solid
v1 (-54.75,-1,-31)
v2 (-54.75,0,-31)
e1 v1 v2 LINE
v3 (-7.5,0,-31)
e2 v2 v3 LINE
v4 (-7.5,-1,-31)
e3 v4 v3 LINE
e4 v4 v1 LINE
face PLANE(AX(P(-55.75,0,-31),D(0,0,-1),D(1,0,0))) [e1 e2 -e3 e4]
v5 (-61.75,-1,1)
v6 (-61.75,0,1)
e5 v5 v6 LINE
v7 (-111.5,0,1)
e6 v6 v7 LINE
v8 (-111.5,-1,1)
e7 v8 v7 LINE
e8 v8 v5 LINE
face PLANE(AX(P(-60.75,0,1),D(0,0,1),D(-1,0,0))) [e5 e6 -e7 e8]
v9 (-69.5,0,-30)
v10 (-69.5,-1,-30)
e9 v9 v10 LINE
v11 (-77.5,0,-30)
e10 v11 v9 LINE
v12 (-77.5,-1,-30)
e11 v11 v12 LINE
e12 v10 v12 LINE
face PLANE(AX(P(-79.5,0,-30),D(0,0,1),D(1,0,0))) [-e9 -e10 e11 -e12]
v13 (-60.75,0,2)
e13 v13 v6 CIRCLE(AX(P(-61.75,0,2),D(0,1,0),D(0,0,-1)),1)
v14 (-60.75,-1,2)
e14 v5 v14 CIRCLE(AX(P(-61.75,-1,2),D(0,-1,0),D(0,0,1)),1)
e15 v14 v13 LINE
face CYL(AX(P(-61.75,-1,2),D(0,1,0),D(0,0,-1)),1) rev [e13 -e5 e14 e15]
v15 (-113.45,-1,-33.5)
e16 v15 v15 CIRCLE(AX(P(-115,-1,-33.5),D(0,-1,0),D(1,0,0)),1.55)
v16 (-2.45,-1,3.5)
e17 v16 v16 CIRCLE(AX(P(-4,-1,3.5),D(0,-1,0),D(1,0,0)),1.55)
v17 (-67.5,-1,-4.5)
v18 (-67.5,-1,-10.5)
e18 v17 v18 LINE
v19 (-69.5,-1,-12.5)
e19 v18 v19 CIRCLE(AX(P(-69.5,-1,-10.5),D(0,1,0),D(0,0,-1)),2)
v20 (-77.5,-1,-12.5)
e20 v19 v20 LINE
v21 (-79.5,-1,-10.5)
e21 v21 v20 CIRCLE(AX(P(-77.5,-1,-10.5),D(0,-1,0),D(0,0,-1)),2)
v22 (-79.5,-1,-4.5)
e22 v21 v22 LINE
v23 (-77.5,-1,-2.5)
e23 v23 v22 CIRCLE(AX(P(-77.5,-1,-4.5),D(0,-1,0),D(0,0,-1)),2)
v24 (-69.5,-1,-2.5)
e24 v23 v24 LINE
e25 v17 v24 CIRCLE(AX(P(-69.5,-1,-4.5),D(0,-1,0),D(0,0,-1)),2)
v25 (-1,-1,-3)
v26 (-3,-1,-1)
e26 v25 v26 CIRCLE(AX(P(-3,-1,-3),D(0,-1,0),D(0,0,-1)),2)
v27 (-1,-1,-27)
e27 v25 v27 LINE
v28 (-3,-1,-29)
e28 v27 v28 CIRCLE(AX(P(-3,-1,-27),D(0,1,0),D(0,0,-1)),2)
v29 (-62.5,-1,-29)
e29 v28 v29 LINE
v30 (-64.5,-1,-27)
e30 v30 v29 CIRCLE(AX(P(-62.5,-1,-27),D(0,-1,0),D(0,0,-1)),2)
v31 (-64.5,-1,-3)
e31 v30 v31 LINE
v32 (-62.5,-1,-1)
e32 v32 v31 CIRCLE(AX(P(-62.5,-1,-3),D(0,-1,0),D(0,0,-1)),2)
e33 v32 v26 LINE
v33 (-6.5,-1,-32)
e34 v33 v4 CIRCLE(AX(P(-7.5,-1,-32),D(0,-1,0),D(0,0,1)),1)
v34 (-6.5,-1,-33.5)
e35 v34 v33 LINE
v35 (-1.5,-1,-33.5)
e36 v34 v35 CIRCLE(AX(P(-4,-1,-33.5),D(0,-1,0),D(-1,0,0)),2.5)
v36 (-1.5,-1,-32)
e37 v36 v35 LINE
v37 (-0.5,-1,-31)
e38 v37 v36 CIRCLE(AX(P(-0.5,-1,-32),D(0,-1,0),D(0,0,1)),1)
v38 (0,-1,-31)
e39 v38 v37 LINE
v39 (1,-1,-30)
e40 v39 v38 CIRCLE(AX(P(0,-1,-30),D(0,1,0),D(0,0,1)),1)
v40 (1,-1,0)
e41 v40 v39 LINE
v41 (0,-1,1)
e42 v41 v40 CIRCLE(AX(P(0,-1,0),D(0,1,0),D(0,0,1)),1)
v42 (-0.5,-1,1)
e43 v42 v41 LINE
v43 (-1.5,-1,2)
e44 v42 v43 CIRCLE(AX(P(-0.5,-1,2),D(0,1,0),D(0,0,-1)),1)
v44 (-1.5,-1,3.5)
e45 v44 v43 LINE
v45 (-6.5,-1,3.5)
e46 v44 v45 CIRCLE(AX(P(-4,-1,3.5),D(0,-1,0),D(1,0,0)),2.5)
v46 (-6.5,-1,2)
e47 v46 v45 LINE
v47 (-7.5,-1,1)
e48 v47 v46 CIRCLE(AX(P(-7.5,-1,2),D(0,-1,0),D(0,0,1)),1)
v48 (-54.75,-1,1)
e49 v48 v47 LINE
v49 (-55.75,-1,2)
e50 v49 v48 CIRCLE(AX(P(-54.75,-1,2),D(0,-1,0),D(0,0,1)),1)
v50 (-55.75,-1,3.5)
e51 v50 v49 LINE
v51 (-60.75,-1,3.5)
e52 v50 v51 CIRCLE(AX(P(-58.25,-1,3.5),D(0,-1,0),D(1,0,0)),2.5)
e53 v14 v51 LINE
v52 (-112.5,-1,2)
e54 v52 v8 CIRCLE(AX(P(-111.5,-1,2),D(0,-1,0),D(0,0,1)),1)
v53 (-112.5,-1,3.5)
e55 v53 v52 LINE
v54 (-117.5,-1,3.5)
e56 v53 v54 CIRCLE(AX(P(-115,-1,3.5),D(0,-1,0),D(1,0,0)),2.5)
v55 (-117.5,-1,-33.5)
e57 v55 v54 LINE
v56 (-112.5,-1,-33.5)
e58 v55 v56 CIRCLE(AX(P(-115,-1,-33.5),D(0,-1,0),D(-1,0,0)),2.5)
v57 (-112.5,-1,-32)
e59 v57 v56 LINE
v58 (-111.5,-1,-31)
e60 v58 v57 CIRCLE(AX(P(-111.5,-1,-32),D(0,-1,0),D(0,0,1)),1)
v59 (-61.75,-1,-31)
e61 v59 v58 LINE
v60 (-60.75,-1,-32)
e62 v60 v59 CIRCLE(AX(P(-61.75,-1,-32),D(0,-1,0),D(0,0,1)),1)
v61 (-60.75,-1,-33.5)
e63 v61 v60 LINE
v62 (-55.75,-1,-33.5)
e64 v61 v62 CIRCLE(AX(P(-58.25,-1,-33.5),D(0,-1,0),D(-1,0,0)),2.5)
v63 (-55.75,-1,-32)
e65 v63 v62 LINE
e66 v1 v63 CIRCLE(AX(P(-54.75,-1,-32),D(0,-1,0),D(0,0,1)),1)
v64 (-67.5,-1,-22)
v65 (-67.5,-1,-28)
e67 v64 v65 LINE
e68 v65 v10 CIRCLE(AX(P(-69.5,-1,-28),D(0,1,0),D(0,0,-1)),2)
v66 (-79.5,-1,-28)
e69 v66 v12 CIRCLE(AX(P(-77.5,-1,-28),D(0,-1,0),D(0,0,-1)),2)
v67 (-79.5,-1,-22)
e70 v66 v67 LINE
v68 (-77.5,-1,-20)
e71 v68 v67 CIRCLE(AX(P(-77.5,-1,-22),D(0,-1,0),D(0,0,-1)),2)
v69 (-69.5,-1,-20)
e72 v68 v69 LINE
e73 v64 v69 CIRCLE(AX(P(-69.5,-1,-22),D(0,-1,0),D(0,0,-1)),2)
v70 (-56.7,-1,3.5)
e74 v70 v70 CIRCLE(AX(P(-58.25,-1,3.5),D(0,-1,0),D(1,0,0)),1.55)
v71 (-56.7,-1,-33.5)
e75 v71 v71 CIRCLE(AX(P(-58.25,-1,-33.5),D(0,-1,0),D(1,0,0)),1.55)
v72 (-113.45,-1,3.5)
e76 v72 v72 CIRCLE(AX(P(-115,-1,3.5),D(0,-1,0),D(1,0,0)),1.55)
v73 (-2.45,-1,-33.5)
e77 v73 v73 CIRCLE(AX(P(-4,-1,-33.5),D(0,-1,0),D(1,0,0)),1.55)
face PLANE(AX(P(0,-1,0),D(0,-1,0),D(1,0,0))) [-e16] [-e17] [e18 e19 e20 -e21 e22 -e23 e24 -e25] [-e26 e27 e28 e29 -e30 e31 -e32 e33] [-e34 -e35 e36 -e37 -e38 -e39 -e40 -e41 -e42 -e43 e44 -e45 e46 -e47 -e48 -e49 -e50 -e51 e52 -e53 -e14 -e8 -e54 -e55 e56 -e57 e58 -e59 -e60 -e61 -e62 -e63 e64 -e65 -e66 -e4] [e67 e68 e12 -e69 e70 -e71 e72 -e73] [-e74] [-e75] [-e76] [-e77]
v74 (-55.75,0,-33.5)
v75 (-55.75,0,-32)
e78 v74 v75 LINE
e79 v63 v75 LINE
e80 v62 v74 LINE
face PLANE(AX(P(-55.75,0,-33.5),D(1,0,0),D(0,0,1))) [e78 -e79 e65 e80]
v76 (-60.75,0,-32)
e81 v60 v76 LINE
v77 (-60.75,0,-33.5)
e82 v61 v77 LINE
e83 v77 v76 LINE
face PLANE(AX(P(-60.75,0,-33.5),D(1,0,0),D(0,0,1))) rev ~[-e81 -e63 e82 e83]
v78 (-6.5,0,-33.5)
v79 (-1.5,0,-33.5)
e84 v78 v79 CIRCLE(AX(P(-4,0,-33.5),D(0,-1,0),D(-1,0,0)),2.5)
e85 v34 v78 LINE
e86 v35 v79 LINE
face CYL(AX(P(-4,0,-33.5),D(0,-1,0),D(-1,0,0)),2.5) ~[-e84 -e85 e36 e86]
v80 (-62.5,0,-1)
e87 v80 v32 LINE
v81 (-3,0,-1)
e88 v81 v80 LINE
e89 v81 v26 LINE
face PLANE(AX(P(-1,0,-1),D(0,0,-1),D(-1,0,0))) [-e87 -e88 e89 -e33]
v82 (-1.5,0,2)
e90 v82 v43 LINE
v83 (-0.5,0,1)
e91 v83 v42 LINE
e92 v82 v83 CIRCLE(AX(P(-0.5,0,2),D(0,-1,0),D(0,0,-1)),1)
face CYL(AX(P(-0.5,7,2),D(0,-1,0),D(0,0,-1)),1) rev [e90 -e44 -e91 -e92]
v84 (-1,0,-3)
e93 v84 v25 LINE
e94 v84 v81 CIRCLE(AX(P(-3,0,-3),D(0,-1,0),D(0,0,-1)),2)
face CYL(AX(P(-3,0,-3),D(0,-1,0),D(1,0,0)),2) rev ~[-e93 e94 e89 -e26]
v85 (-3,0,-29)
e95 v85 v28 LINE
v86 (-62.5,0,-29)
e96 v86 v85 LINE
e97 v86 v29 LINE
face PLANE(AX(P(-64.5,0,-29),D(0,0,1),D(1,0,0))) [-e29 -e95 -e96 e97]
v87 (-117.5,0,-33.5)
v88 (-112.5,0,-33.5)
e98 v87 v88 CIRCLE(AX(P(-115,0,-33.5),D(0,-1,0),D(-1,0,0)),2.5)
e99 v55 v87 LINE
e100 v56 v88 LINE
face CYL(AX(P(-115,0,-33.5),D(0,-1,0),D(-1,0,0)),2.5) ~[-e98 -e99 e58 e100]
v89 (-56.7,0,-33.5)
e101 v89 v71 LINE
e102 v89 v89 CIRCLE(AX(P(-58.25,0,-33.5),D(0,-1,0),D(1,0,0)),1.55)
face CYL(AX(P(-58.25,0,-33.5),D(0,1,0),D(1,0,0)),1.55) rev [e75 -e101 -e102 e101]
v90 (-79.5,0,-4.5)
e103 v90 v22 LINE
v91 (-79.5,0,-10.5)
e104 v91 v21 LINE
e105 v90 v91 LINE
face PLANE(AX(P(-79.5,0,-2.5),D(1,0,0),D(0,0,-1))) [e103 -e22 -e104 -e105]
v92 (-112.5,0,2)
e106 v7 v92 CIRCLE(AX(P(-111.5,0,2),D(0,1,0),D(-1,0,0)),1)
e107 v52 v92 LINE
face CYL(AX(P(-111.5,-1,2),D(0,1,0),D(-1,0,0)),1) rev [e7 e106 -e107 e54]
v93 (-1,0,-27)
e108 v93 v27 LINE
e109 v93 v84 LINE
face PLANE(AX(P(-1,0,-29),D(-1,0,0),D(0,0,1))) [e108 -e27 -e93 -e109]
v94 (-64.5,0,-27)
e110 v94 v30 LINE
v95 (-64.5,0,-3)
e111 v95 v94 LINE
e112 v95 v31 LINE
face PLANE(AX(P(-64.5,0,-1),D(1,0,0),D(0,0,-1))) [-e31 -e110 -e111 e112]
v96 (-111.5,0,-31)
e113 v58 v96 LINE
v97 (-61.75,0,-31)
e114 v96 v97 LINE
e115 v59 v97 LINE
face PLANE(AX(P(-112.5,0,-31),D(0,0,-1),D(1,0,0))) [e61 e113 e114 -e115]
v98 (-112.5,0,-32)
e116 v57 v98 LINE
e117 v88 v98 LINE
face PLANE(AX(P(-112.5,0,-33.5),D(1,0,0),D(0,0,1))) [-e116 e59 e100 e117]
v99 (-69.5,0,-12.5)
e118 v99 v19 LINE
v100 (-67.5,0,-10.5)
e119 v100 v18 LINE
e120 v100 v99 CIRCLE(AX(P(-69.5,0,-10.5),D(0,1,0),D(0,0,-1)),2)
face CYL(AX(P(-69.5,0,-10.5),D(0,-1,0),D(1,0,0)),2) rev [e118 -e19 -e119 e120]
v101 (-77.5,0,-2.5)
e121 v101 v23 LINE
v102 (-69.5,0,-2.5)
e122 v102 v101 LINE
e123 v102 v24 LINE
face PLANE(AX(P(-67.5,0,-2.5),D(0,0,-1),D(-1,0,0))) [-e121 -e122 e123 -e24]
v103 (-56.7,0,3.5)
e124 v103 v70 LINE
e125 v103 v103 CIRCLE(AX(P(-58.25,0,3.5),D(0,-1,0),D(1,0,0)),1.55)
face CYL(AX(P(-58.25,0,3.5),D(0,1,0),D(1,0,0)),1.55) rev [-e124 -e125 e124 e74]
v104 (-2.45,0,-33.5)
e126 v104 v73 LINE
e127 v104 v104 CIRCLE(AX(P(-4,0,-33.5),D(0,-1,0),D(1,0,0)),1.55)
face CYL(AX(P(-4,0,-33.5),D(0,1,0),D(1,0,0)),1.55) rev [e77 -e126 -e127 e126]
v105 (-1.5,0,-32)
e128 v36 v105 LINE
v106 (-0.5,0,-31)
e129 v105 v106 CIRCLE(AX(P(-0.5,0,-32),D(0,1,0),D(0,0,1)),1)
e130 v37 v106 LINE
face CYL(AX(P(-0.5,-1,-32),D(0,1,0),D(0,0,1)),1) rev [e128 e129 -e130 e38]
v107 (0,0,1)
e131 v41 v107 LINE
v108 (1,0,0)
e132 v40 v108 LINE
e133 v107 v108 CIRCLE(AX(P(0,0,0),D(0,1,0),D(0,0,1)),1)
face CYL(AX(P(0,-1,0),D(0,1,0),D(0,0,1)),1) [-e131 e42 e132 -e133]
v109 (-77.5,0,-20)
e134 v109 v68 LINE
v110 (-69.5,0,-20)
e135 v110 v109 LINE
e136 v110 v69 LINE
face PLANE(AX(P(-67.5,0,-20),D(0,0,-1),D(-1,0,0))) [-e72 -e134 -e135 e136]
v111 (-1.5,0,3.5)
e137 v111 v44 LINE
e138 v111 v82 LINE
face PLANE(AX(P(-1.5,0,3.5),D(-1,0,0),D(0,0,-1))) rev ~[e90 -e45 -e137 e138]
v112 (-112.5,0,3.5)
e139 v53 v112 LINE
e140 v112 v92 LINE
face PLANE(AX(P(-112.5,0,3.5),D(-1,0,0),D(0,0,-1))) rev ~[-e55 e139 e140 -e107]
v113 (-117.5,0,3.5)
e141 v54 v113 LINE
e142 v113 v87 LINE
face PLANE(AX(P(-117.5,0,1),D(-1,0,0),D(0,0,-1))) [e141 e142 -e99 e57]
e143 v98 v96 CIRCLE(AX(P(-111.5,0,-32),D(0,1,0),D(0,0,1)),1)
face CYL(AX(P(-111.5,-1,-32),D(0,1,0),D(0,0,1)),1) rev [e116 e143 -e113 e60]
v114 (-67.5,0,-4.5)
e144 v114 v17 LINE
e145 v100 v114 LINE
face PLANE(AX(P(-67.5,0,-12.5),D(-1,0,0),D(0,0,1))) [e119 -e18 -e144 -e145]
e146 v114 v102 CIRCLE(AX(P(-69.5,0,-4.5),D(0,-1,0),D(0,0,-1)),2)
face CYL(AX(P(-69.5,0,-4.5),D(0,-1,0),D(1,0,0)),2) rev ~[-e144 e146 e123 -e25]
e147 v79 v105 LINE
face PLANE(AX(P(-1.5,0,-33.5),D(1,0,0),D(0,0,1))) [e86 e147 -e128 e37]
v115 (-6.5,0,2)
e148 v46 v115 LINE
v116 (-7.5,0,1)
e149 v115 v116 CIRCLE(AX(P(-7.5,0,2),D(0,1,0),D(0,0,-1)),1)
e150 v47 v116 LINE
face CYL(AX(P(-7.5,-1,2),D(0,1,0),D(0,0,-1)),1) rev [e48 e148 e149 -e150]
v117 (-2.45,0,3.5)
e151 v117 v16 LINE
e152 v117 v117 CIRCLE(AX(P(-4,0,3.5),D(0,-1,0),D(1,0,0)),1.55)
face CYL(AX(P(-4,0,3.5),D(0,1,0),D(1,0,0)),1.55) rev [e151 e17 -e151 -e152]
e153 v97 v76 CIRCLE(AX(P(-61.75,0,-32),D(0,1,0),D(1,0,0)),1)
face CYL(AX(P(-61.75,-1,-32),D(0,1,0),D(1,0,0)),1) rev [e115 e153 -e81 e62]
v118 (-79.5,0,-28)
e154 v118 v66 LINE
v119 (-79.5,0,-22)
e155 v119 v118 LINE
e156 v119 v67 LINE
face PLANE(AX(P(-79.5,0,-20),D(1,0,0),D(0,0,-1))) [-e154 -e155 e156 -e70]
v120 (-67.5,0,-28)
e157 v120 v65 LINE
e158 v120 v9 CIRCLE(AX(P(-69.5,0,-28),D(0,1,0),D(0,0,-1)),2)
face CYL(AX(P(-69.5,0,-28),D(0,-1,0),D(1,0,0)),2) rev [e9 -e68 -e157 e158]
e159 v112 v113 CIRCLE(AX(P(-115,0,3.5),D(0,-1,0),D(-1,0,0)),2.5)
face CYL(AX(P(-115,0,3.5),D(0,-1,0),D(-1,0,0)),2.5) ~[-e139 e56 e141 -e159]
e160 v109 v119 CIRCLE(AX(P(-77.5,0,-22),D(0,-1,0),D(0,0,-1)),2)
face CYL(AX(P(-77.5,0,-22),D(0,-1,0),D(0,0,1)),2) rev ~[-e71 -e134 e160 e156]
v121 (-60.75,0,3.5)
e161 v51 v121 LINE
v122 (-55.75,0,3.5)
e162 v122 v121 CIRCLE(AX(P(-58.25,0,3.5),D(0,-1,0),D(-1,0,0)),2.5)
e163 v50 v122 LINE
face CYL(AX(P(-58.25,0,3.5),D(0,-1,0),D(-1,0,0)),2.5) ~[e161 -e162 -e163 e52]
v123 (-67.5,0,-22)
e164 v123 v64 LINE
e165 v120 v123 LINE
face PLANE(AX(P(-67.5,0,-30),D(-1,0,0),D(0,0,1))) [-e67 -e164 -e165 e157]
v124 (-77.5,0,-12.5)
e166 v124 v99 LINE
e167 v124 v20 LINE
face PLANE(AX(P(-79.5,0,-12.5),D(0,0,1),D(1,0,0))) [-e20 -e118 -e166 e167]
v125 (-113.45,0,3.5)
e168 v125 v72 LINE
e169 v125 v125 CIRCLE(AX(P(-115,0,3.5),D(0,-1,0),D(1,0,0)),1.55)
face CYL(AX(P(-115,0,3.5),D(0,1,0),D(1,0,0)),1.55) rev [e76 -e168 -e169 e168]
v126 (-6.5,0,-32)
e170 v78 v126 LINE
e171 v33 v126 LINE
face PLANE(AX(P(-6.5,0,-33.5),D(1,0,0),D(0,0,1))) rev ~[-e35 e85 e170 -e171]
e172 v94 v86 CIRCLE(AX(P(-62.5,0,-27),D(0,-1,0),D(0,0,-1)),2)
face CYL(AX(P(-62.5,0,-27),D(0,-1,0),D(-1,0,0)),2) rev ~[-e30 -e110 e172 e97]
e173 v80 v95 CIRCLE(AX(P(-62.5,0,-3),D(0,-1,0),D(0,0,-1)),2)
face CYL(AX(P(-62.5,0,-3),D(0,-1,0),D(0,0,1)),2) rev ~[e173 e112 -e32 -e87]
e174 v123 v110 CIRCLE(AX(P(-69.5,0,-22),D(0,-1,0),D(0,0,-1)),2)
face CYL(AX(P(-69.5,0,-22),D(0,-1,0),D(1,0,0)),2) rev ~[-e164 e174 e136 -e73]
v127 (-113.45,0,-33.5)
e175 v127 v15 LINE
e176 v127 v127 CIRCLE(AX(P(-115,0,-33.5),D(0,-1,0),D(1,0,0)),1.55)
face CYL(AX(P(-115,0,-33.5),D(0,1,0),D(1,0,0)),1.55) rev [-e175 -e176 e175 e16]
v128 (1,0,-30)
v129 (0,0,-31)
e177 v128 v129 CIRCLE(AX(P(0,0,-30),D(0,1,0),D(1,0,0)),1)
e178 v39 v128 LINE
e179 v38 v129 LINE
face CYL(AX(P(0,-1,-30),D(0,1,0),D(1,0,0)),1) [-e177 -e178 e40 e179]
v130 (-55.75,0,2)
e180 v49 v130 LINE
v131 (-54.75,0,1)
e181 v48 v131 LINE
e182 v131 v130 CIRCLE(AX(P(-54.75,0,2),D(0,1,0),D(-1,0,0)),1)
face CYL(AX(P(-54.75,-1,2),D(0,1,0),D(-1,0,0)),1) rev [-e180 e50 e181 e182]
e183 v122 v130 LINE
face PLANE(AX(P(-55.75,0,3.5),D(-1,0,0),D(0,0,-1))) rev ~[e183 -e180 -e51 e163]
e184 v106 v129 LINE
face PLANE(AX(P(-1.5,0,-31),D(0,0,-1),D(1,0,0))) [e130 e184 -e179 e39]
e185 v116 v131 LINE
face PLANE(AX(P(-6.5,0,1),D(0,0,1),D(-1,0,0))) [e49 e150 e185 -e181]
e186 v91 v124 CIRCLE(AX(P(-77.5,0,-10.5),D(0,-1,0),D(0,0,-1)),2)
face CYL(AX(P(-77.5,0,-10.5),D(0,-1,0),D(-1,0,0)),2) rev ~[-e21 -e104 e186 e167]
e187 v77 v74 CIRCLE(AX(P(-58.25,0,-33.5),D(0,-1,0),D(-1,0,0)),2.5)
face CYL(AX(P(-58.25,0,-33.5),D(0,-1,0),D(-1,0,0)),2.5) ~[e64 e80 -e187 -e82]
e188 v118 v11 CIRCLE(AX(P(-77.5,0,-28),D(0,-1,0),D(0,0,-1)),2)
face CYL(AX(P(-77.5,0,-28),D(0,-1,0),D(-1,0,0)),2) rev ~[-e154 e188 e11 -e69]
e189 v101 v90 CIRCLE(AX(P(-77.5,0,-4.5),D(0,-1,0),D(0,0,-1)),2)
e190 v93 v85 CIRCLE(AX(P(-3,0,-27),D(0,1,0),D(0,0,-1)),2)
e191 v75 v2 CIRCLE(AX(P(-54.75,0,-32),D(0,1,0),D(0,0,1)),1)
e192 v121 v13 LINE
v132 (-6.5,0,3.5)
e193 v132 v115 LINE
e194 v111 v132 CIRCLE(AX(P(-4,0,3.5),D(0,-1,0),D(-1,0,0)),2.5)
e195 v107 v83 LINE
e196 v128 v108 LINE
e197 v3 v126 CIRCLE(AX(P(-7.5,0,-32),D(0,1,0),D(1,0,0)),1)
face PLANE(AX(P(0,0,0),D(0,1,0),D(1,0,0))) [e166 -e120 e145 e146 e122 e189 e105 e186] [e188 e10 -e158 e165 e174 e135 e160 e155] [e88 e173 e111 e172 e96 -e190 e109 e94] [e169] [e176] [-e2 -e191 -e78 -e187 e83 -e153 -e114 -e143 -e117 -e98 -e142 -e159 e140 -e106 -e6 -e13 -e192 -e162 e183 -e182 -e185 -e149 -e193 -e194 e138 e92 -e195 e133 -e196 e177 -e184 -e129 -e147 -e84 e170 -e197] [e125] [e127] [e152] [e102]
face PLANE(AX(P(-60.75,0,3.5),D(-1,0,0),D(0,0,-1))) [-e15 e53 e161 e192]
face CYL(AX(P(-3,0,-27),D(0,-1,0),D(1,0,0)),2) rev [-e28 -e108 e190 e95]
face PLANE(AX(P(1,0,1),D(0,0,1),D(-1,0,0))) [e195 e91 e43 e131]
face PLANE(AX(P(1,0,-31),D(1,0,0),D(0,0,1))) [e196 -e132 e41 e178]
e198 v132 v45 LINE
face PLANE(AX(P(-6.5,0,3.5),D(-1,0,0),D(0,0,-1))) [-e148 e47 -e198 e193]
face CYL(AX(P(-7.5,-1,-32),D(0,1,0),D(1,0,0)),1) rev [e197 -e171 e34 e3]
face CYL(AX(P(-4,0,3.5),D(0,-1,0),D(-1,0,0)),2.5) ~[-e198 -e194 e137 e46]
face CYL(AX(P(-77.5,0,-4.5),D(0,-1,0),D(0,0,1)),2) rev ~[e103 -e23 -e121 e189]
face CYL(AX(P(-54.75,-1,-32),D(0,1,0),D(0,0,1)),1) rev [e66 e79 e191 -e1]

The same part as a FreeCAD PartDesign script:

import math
import FreeCAD as App
import Part
import Sketcher
from FreeCAD import Vector
Q = App.Units.Quantity


def edges_at(feature, points):
    """Names of the edges that pass closest to the given points."""
    edges = feature.Shape.Edges
    near = lambda p: min(range(len(edges)), key=lambda i: edges[i].distToShape(Part.Vertex(*p))[0])
    return sorted({f"Edge{near(p) + 1}" for p in points})

doc = App.newDocument("Part")
body = doc.addObject("PartDesign::Body", "Body")
body.AllowCompound = True

# Sketch on XZ plane
sketch1 = body.newObject("Sketcher::SketchObject", "Sketch")
sketch1.AttachmentSupport = (doc.getObject("XZ_Plane"), [""])
sketch1.MapMode = "FlatFace"
sketch1.addGeometry(Part.LineSegment(Vector(-1.5, 1, 0), Vector(1, 1, 0)), False)
sketch1.addGeometry(Part.LineSegment(Vector(1, 1, 0), Vector(1, -31, 0)), False)
sketch1.addGeometry(Part.LineSegment(Vector(1, -31, 0), Vector(-1.5, -31, 0)), False)
sketch1.addGeometry(Part.LineSegment(Vector(-1.5, -31, 0), Vector(-1.5, -33.5, 0)), False)
sketch1.addGeometry(Part.ArcOfCircle(Part.Circle(Vector(-4, -33.5, 0), Vector(0, 0, 1), 2.5), math.radians(180), math.radians(360)), False)
sketch1.addGeometry(Part.LineSegment(Vector(-6.5, -33.5, 0), Vector(-6.5, -31, 0)), False)
sketch1.addGeometry(Part.LineSegment(Vector(-6.5, -31, 0), Vector(-55.8, -31, 0)), False)
sketch1.addGeometry(Part.LineSegment(Vector(-55.8, -31, 0), Vector(-55.8, -33.5, 0)), False)
sketch1.addGeometry(Part.ArcOfCircle(Part.Circle(Vector(-58.2, -33.5, 0), Vector(0, 0, 1), 2.5), math.radians(180), math.radians(360)), False)
sketch1.addGeometry(Part.LineSegment(Vector(-60.8, -33.5, 0), Vector(-60.8, -31, 0)), False)
sketch1.addGeometry(Part.LineSegment(Vector(-60.8, -31, 0), Vector(-112.5, -31, 0)), False)
sketch1.addGeometry(Part.LineSegment(Vector(-112.5, -31, 0), Vector(-112.5, -33.5, 0)), False)
sketch1.addGeometry(Part.ArcOfCircle(Part.Circle(Vector(-115, -33.5, 0), Vector(0, 0, 1), 2.5), math.radians(180), math.radians(360)), False)
sketch1.addGeometry(Part.LineSegment(Vector(-117.5, -33.5, 0), Vector(-117.5, 3.5, 0)), False)
sketch1.addGeometry(Part.ArcOfCircle(Part.Circle(Vector(-115, 3.5, 0), Vector(0, 0, 1), 2.5), math.radians(0), math.radians(180)), False)
sketch1.addGeometry(Part.LineSegment(Vector(-112.5, 3.5, 0), Vector(-112.5, 1, 0)), False)
sketch1.addGeometry(Part.LineSegment(Vector(-112.5, 1, 0), Vector(-60.8, 1, 0)), False)
sketch1.addGeometry(Part.LineSegment(Vector(-60.8, 1, 0), Vector(-60.8, 3.5, 0)), False)
sketch1.addGeometry(Part.ArcOfCircle(Part.Circle(Vector(-58.2, 3.5, 0), Vector(0, 0, 1), 2.5), math.radians(0), math.radians(180)), False)
sketch1.addGeometry(Part.LineSegment(Vector(-55.8, 3.5, 0), Vector(-55.8, 1, 0)), False)
sketch1.addGeometry(Part.LineSegment(Vector(-55.8, 1, 0), Vector(-6.5, 1, 0)), False)
sketch1.addGeometry(Part.LineSegment(Vector(-6.5, 1, 0), Vector(-6.5, 3.5, 0)), False)
sketch1.addGeometry(Part.ArcOfCircle(Part.Circle(Vector(-4, 3.5, 0), Vector(0, 0, 1), 2.5), math.radians(0), math.radians(180)), False)
sketch1.addGeometry(Part.LineSegment(Vector(-1.5, 3.5, 0), Vector(-1.5, 1, 0)), False)
sketch1.addGeometry(Part.LineSegment(Vector(0, -30, 0), Vector(0, 0, 0)), False)
sketch1.addGeometry(Part.LineSegment(Vector(0, 0, 0), Vector(-40, 0, 0)), False)
sketch1.addGeometry(Part.LineSegment(Vector(-40, 0, 0), Vector(-40, -6, 0)), False)
sketch1.addGeometry(Part.LineSegment(Vector(-40, -6, 0), Vector(-73.5, -6, 0)), False)
sketch1.addGeometry(Part.LineSegment(Vector(-73.5, -6, 0), Vector(-73.5, 0, 0)), False)
sketch1.addGeometry(Part.LineSegment(Vector(-73.5, 0, 0), Vector(-94, 0, 0)), False)
sketch1.addGeometry(Part.LineSegment(Vector(-94, 0, 0), Vector(-94, -30, 0)), False)
sketch1.addGeometry(Part.LineSegment(Vector(-94, -30, 0), Vector(-73.5, -30, 0)), False)
sketch1.addGeometry(Part.LineSegment(Vector(-73.5, -30, 0), Vector(-73.5, -24, 0)), False)
sketch1.addGeometry(Part.LineSegment(Vector(-73.5, -24, 0), Vector(-40, -24, 0)), False)
sketch1.addGeometry(Part.LineSegment(Vector(-40, -24, 0), Vector(-40, -30, 0)), False)
sketch1.addGeometry(Part.LineSegment(Vector(-40, -30, 0), Vector(0, -30, 0)), False)
sketch1.addGeometry(Part.LineSegment(Vector(-57.8, -30, 0), Vector(-41, -30, 0)), False)
sketch1.addGeometry(Part.LineSegment(Vector(-41, -30, 0), Vector(-41, -25, 0)), False)
sketch1.addGeometry(Part.LineSegment(Vector(-41, -25, 0), Vector(-57.8, -25, 0)), False)
sketch1.addGeometry(Part.LineSegment(Vector(-57.8, -25, 0), Vector(-57.8, -30, 0)), False)
sketch1.addGeometry(Part.LineSegment(Vector(-72.5, -30, 0), Vector(-58.8, -30, 0)), False)
sketch1.addGeometry(Part.LineSegment(Vector(-58.8, -30, 0), Vector(-58.8, -25, 0)), False)
sketch1.addGeometry(Part.LineSegment(Vector(-58.8, -25, 0), Vector(-72.5, -25, 0)), False)
sketch1.addGeometry(Part.LineSegment(Vector(-72.5, -25, 0), Vector(-72.5, -30, 0)), False)
sketch1.addGeometry(Part.LineSegment(Vector(-58.8, 0, 0), Vector(-72.5, 0, 0)), False)
sketch1.addGeometry(Part.LineSegment(Vector(-72.5, 0, 0), Vector(-72.5, -5, 0)), False)
sketch1.addGeometry(Part.LineSegment(Vector(-72.5, -5, 0), Vector(-58.8, -5, 0)), False)
sketch1.addGeometry(Part.LineSegment(Vector(-58.8, -5, 0), Vector(-58.8, 0, 0)), False)
sketch1.addGeometry(Part.LineSegment(Vector(-41, 0, 0), Vector(-57.8, 0, 0)), False)
sketch1.addGeometry(Part.LineSegment(Vector(-57.8, 0, 0), Vector(-57.8, -5, 0)), False)
sketch1.addGeometry(Part.LineSegment(Vector(-57.8, -5, 0), Vector(-41, -5, 0)), False)
sketch1.addGeometry(Part.LineSegment(Vector(-41, -5, 0), Vector(-41, 0, 0)), False)
sketch1.addGeometry(Part.Circle(Vector(-4, 3.5, 0), Vector(0, 0, 1), 1.6), False)
sketch1.addGeometry(Part.Circle(Vector(-58.2, 3.5, 0), Vector(0, 0, 1), 1.6), False)
sketch1.addGeometry(Part.Circle(Vector(-115, 3.5, 0), Vector(0, 0, 1), 1.6), False)
sketch1.addGeometry(Part.Circle(Vector(-115, -33.5, 0), Vector(0, 0, 1), 1.6), False)
sketch1.addGeometry(Part.Circle(Vector(-58.2, -33.5, 0), Vector(0, 0, 1), 1.6), False)
sketch1.addGeometry(Part.Circle(Vector(-4, -33.5, 0), Vector(0, 0, 1), 1.6), False)
sketch1.addGeometry(Part.LineSegment(Vector(-38, -22, 0), Vector(-38, -8, 0)), False)
sketch1.addGeometry(Part.LineSegment(Vector(-38, -8, 0), Vector(-37, -8, 0)), False)
sketch1.addGeometry(Part.LineSegment(Vector(-37, -8, 0), Vector(-37, -22, 0)), False)
sketch1.addGeometry(Part.LineSegment(Vector(-37, -22, 0), Vector(-38, -22, 0)), False)
sketch1.addGeometry(Part.LineSegment(Vector(-76.5, -22, 0), Vector(-76.5, -8, 0)), False)
sketch1.addGeometry(Part.LineSegment(Vector(-76.5, -8, 0), Vector(-75.5, -8, 0)), False)
sketch1.addGeometry(Part.LineSegment(Vector(-75.5, -8, 0), Vector(-75.5, -22, 0)), False)
sketch1.addGeometry(Part.LineSegment(Vector(-75.5, -22, 0), Vector(-76.5, -22, 0)), False)
sketch1.addConstraint(Sketcher.Constraint("Coincident", 0, 2, 1, 1))
sketch1.addConstraint(Sketcher.Constraint("Coincident", 1, 2, 2, 1))
sketch1.addConstraint(Sketcher.Constraint("Coincident", 2, 2, 3, 1))
sketch1.addConstraint(Sketcher.Constraint("Tangent", 3, 2, 4, 2))
sketch1.addConstraint(Sketcher.Constraint("Tangent", 4, 1, 5, 1))
sketch1.addConstraint(Sketcher.Constraint("Coincident", 5, 2, 6, 1))
sketch1.addConstraint(Sketcher.Constraint("Coincident", 6, 2, 7, 1))
sketch1.addConstraint(Sketcher.Constraint("Tangent", 7, 2, 8, 2))
sketch1.addConstraint(Sketcher.Constraint("Tangent", 8, 1, 9, 1))
sketch1.addConstraint(Sketcher.Constraint("Coincident", 9, 2, 10, 1))
sketch1.addConstraint(Sketcher.Constraint("Coincident", 10, 2, 11, 1))
sketch1.addConstraint(Sketcher.Constraint("Tangent", 11, 2, 12, 2))
sketch1.addConstraint(Sketcher.Constraint("Tangent", 12, 1, 13, 1))
sketch1.addConstraint(Sketcher.Constraint("Tangent", 13, 2, 14, 2))
sketch1.addConstraint(Sketcher.Constraint("Tangent", 14, 1, 15, 1))
sketch1.addConstraint(Sketcher.Constraint("Coincident", 15, 2, 16, 1))
sketch1.addConstraint(Sketcher.Constraint("Coincident", 16, 2, 17, 1))
sketch1.addConstraint(Sketcher.Constraint("Tangent", 17, 2, 18, 2))
sketch1.addConstraint(Sketcher.Constraint("Tangent", 18, 1, 19, 1))
sketch1.addConstraint(Sketcher.Constraint("Coincident", 19, 2, 20, 1))
sketch1.addConstraint(Sketcher.Constraint("Coincident", 20, 2, 21, 1))
sketch1.addConstraint(Sketcher.Constraint("Tangent", 21, 2, 22, 2))
sketch1.addConstraint(Sketcher.Constraint("Tangent", 22, 1, 23, 1))
sketch1.addConstraint(Sketcher.Constraint("Coincident", 23, 2, 0, 1))
sketch1.addConstraint(Sketcher.Constraint("Coincident", 24, 2, 25, 1))
sketch1.addConstraint(Sketcher.Constraint("Coincident", 25, 2, 26, 1))
sketch1.addConstraint(Sketcher.Constraint("Coincident", 26, 2, 27, 1))
sketch1.addConstraint(Sketcher.Constraint("Coincident", 27, 2, 28, 1))
sketch1.addConstraint(Sketcher.Constraint("Coincident", 28, 2, 29, 1))
sketch1.addConstraint(Sketcher.Constraint("Coincident", 29, 2, 30, 1))
sketch1.addConstraint(Sketcher.Constraint("Coincident", 30, 2, 31, 1))
sketch1.addConstraint(Sketcher.Constraint("Coincident", 31, 2, 32, 1))
sketch1.addConstraint(Sketcher.Constraint("Coincident", 32, 2, 33, 1))
sketch1.addConstraint(Sketcher.Constraint("Coincident", 33, 2, 34, 1))
sketch1.addConstraint(Sketcher.Constraint("Coincident", 34, 2, 35, 1))
sketch1.addConstraint(Sketcher.Constraint("Coincident", 35, 2, 24, 1))
sketch1.addConstraint(Sketcher.Constraint("Coincident", 36, 2, 37, 1))
sketch1.addConstraint(Sketcher.Constraint("Coincident", 37, 2, 38, 1))
sketch1.addConstraint(Sketcher.Constraint("Coincident", 38, 2, 39, 1))
sketch1.addConstraint(Sketcher.Constraint("Coincident", 39, 2, 36, 1))
sketch1.addConstraint(Sketcher.Constraint("Coincident", 40, 2, 41, 1))
sketch1.addConstraint(Sketcher.Constraint("Coincident", 41, 2, 42, 1))
sketch1.addConstraint(Sketcher.Constraint("Coincident", 42, 2, 43, 1))
sketch1.addConstraint(Sketcher.Constraint("Coincident", 43, 2, 40, 1))
sketch1.addConstraint(Sketcher.Constraint("Coincident", 44, 2, 45, 1))
sketch1.addConstraint(Sketcher.Constraint("Coincident", 45, 2, 46, 1))
sketch1.addConstraint(Sketcher.Constraint("Coincident", 46, 2, 47, 1))
sketch1.addConstraint(Sketcher.Constraint("Coincident", 47, 2, 44, 1))
sketch1.addConstraint(Sketcher.Constraint("Coincident", 48, 2, 49, 1))
sketch1.addConstraint(Sketcher.Constraint("Coincident", 49, 2, 50, 1))
sketch1.addConstraint(Sketcher.Constraint("Coincident", 50, 2, 51, 1))
sketch1.addConstraint(Sketcher.Constraint("Coincident", 51, 2, 48, 1))
sketch1.addConstraint(Sketcher.Constraint("Coincident", 58, 2, 59, 1))
sketch1.addConstraint(Sketcher.Constraint("Coincident", 59, 2, 60, 1))
sketch1.addConstraint(Sketcher.Constraint("Coincident", 60, 2, 61, 1))
sketch1.addConstraint(Sketcher.Constraint("Coincident", 61, 2, 58, 1))
sketch1.addConstraint(Sketcher.Constraint("Coincident", 62, 2, 63, 1))
sketch1.addConstraint(Sketcher.Constraint("Coincident", 63, 2, 64, 1))
sketch1.addConstraint(Sketcher.Constraint("Coincident", 64, 2, 65, 1))
sketch1.addConstraint(Sketcher.Constraint("Coincident", 65, 2, 62, 1))
sketch1.addConstraint(Sketcher.Constraint("Horizontal", 0))
sketch1.addConstraint(Sketcher.Constraint("Vertical", 1))
sketch1.addConstraint(Sketcher.Constraint("Horizontal", 2))
sketch1.addConstraint(Sketcher.Constraint("Vertical", 3))
sketch1.addConstraint(Sketcher.Constraint("Vertical", 5))
sketch1.addConstraint(Sketcher.Constraint("Horizontal", 6))
sketch1.addConstraint(Sketcher.Constraint("Vertical", 7))
sketch1.addConstraint(Sketcher.Constraint("Vertical", 9))
sketch1.addConstraint(Sketcher.Constraint("Horizontal", 10))
sketch1.addConstraint(Sketcher.Constraint("Vertical", 11))
sketch1.addConstraint(Sketcher.Constraint("Vertical", 13))
sketch1.addConstraint(Sketcher.Constraint("Vertical", 15))
sketch1.addConstraint(Sketcher.Constraint("Horizontal", 16))
sketch1.addConstraint(Sketcher.Constraint("Vertical", 17))
sketch1.addConstraint(Sketcher.Constraint("Vertical", 19))
sketch1.addConstraint(Sketcher.Constraint("Horizontal", 20))
sketch1.addConstraint(Sketcher.Constraint("Vertical", 21))
sketch1.addConstraint(Sketcher.Constraint("Vertical", 23))
sketch1.addConstraint(Sketcher.Constraint("Vertical", 24))
sketch1.addConstraint(Sketcher.Constraint("Horizontal", 25))
sketch1.addConstraint(Sketcher.Constraint("Vertical", 26))
sketch1.addConstraint(Sketcher.Constraint("Horizontal", 27))
sketch1.addConstraint(Sketcher.Constraint("Vertical", 28))
sketch1.addConstraint(Sketcher.Constraint("Horizontal", 29))
sketch1.addConstraint(Sketcher.Constraint("Vertical", 30))
sketch1.addConstraint(Sketcher.Constraint("Horizontal", 31))
sketch1.addConstraint(Sketcher.Constraint("Vertical", 32))
sketch1.addConstraint(Sketcher.Constraint("Horizontal", 33))
sketch1.addConstraint(Sketcher.Constraint("Vertical", 34))
sketch1.addConstraint(Sketcher.Constraint("Horizontal", 35))
sketch1.addConstraint(Sketcher.Constraint("Horizontal", 36))
sketch1.addConstraint(Sketcher.Constraint("Vertical", 37))
sketch1.addConstraint(Sketcher.Constraint("Horizontal", 38))
sketch1.addConstraint(Sketcher.Constraint("Vertical", 39))
sketch1.addConstraint(Sketcher.Constraint("Horizontal", 40))
sketch1.addConstraint(Sketcher.Constraint("Vertical", 41))
sketch1.addConstraint(Sketcher.Constraint("Horizontal", 42))
sketch1.addConstraint(Sketcher.Constraint("Vertical", 43))
sketch1.addConstraint(Sketcher.Constraint("Horizontal", 44))
sketch1.addConstraint(Sketcher.Constraint("Vertical", 45))
sketch1.addConstraint(Sketcher.Constraint("Horizontal", 46))
sketch1.addConstraint(Sketcher.Constraint("Vertical", 47))
sketch1.addConstraint(Sketcher.Constraint("Horizontal", 48))
sketch1.addConstraint(Sketcher.Constraint("Vertical", 49))
sketch1.addConstraint(Sketcher.Constraint("Horizontal", 50))
sketch1.addConstraint(Sketcher.Constraint("Vertical", 51))
sketch1.addConstraint(Sketcher.Constraint("Vertical", 58))
sketch1.addConstraint(Sketcher.Constraint("Horizontal", 59))
sketch1.addConstraint(Sketcher.Constraint("Vertical", 60))
sketch1.addConstraint(Sketcher.Constraint("Horizontal", 61))
sketch1.addConstraint(Sketcher.Constraint("Vertical", 62))
sketch1.addConstraint(Sketcher.Constraint("Horizontal", 63))
sketch1.addConstraint(Sketcher.Constraint("Vertical", 64))
sketch1.addConstraint(Sketcher.Constraint("Horizontal", 65))
sketch1.addConstraint(Sketcher.Constraint("Coincident", 24, 2, -1, 1))
sketch1.addConstraint(Sketcher.Constraint("Coincident", 52, 3, 22, 3))
sketch1.addConstraint(Sketcher.Constraint("Coincident", 53, 3, 18, 3))
sketch1.addConstraint(Sketcher.Constraint("Coincident", 54, 3, 14, 3))
sketch1.addConstraint(Sketcher.Constraint("Coincident", 55, 3, 12, 3))
sketch1.addConstraint(Sketcher.Constraint("Coincident", 56, 3, 8, 3))
sketch1.addConstraint(Sketcher.Constraint("Coincident", 57, 3, 4, 3))
sketch1.addConstraint(Sketcher.Constraint("Equal", 4, 8))
sketch1.addConstraint(Sketcher.Constraint("Equal", 8, 12))
sketch1.addConstraint(Sketcher.Constraint("Equal", 12, 14))
sketch1.addConstraint(Sketcher.Constraint("Equal", 14, 18))
sketch1.addConstraint(Sketcher.Constraint("Equal", 18, 22))
sketch1.addConstraint(Sketcher.Constraint("Equal", 52, 53))
sketch1.addConstraint(Sketcher.Constraint("Equal", 53, 54))
sketch1.addConstraint(Sketcher.Constraint("Equal", 54, 55))
sketch1.addConstraint(Sketcher.Constraint("Equal", 55, 56))
sketch1.addConstraint(Sketcher.Constraint("Equal", 56, 57))
sketch1.addConstraint(Sketcher.Constraint("PointOnObject", 28, 2, -1))
sketch1.addConstraint(Sketcher.Constraint("PointOnObject", 44, 2, -1))
sketch1.addConstraint(Sketcher.Constraint("PointOnObject", 48, 2, -1))
sketch1.addConstraint(Sketcher.Constraint("Horizontal", 4, 3, 8, 3))
sketch1.addConstraint(Sketcher.Constraint("Horizontal", 8, 3, 12, 3))
sketch1.addConstraint(Sketcher.Constraint("Horizontal", 14, 3, 18, 3))
sketch1.addConstraint(Sketcher.Constraint("Horizontal", 18, 3, 22, 3))
sketch1.addConstraint(Sketcher.Constraint("Horizontal", 2, 2, 5, 2))
sketch1.addConstraint(Sketcher.Constraint("Horizontal", 6, 2, 9, 2))
sketch1.addConstraint(Sketcher.Constraint("Horizontal", 0, 2, 15, 2))
sketch1.addConstraint(Sketcher.Constraint("Horizontal", 16, 2, 19, 2))
sketch1.addConstraint(Sketcher.Constraint("Horizontal", 31, 2, 34, 2))
sketch1.addConstraint(Sketcher.Constraint("Horizontal", 35, 2, 36, 2))
sketch1.addConstraint(Sketcher.Constraint("Horizontal", 39, 2, 40, 2))
sketch1.addConstraint(Sketcher.Constraint("Horizontal", 38, 2, 41, 2))
sketch1.addConstraint(Sketcher.Constraint("Horizontal", 46, 2, 49, 2))
sketch1.addConstraint(Sketcher.Constraint("Horizontal", 59, 2, 62, 2))
sketch1.addConstraint(Sketcher.Constraint("Horizontal", 61, 2, 64, 2))
sketch1.addConstraint(Sketcher.Constraint("Vertical", 8, 3, 18, 3))
sketch1.addConstraint(Sketcher.Constraint("Vertical", 4, 3, 22, 3))
sketch1.addConstraint(Sketcher.Constraint("Vertical", 28, 2, 31, 2))
sketch1.addConstraint(Sketcher.Constraint("Vertical", 26, 2, 33, 2))
sketch1.addConstraint(Sketcher.Constraint("Vertical", 43, 2, 44, 2))
sketch1.addConstraint(Sketcher.Constraint("Vertical", 41, 2, 46, 2))
sketch1.addConstraint(Sketcher.Constraint("Vertical", 39, 2, 48, 2))
sketch1.addConstraint(Sketcher.Constraint("Vertical", 37, 2, 50, 2))
sketch1.addConstraint(Sketcher.Constraint("Equal", 61, 63))
sketch1.addConstraint(Sketcher.Constraint("Equal", 2, 3))
sketch1.addConstraint(Sketcher.Constraint("Equal", 11, 15))
sketch1.addConstraint(Sketcher.Constraint("Equal", 28, 32))
sketch1.addConstraint(Sketcher.Constraint("Equal", 43, 45))
sketch1.addConstraint(Sketcher.Constraint("Diameter", 52, Q("3.1 mm")))
sketch1.addConstraint(Sketcher.Constraint("Radius", 4, Q("2.5 mm")))
sketch1.addConstraint(Sketcher.Constraint("DistanceX", 59, 1, 59, 2, Q("1 mm")))
sketch1.addConstraint(Sketcher.Constraint("DistanceY", 13, 1, 13, 2, Q("37 mm")))
sketch1.addConstraint(Sketcher.Constraint("DistanceY", 24, 1, 24, 2, Q("30 mm")))
sketch1.addConstraint(Sketcher.Constraint("DistanceY", 26, 2, 26, 1, Q("6 mm")))
sketch1.addConstraint(Sketcher.Constraint("DistanceY", 37, 1, 37, 2, Q("5 mm")))
sketch1.addConstraint(Sketcher.Constraint("DistanceX", 0, 1, 0, 2, Q("2.5 mm")))
sketch1.addConstraint(Sketcher.Constraint("DistanceX", -1, 1, 0, 2, Q("1 mm")))
sketch1.addConstraint(Sketcher.Constraint("DistanceY", -1, 1, 0, 2, Q("1 mm")))
sketch1.addConstraint(Sketcher.Constraint("DistanceX", 59, 2, -1, 1, Q("37 mm")))
sketch1.addConstraint(Sketcher.Constraint("DistanceX", 12, 1, -1, 1, Q("117.5 mm")))
sketch1.addConstraint(Sketcher.Constraint("DistanceX", 25, 2, 25, 1, Q("40 mm")))
sketch1.addConstraint(Sketcher.Constraint("DistanceY", 58, 1, 58, 2, Q("14 mm")))
sketch1.addConstraint(Sketcher.Constraint("DistanceX", 27, 2, 27, 1, Q("33.5 mm")))
sketch1.addConstraint(Sketcher.Constraint("DistanceX", 29, 2, 29, 1, Q("20.5 mm")))
sketch1.addConstraint(Sketcher.Constraint("DistanceX", 36, 2, -1, 1, Q("41 mm")))
sketch1.addConstraint(Sketcher.Constraint("DistanceY", 58, 2, -1, 1, Q("8 mm")))
sketch1.addConstraint(Sketcher.Constraint("DistanceX", 6, 2, 6, 1, Q("49.25 mm")))
sketch1.addConstraint(Sketcher.Constraint("DistanceX", 36, 1, 36, 2, Q("16.75 mm")))
sketch1.addConstraint(Sketcher.Constraint("DistanceX", 40, 1, 40, 2, Q("13.75 mm")))
sketch1.addConstraint(Sketcher.Constraint("DistanceX", 42, 2, -1, 1, Q("72.5 mm")))
sketch1.addConstraint(Sketcher.Constraint("DistanceX", 62, 2, -1, 1, Q("76.5 mm")))
pad1 = body.newObject("PartDesign::Pad", "Pad")
pad1.Profile = sketch1
pad1.Length = 7
pad1.Reversed = True

# Sketch on XZ plane
sketch2 = body.newObject("Sketcher::SketchObject", "Sketch001")
sketch2.AttachmentSupport = (doc.getObject("XZ_Plane"), [""])
sketch2.MapMode = "FlatFace"
sketch2.addGeometry(Part.LineSegment(Vector(-117.5, 3.5, 0), Vector(-117.5, -33.5, 0)), False)
sketch2.addGeometry(Part.ArcOfCircle(Part.Circle(Vector(-115, -33.5, 0), Vector(0, 0, 1), 2.5), math.radians(180), math.radians(360)), False)
sketch2.addGeometry(Part.LineSegment(Vector(-112.5, -33.5, 0), Vector(-112.5, -31, 0)), False)
sketch2.addGeometry(Part.LineSegment(Vector(-112.5, -31, 0), Vector(-60.8, -31, 0)), False)
sketch2.addGeometry(Part.LineSegment(Vector(-60.8, -31, 0), Vector(-60.8, -33.5, 0)), False)
sketch2.addGeometry(Part.ArcOfCircle(Part.Circle(Vector(-58.2, -33.5, 0), Vector(0, 0, 1), 2.5), math.radians(180), math.radians(360)), False)
sketch2.addGeometry(Part.LineSegment(Vector(-55.8, -33.5, 0), Vector(-55.8, -31, 0)), False)
sketch2.addGeometry(Part.LineSegment(Vector(-55.8, -31, 0), Vector(-6.5, -31, 0)), False)
sketch2.addGeometry(Part.LineSegment(Vector(-6.5, -31, 0), Vector(-6.5, -33.5, 0)), False)
sketch2.addGeometry(Part.ArcOfCircle(Part.Circle(Vector(-4, -33.5, 0), Vector(0, 0, 1), 2.5), math.radians(180), math.radians(360)), False)
sketch2.addGeometry(Part.LineSegment(Vector(-1.5, -33.5, 0), Vector(-1.5, -31, 0)), False)
sketch2.addGeometry(Part.LineSegment(Vector(-1.5, -31, 0), Vector(1, -31, 0)), False)
sketch2.addGeometry(Part.LineSegment(Vector(1, -31, 0), Vector(1, 1, 0)), False)
sketch2.addGeometry(Part.LineSegment(Vector(1, 1, 0), Vector(-1.5, 1, 0)), False)
sketch2.addGeometry(Part.LineSegment(Vector(-1.5, 1, 0), Vector(-1.5, 3.5, 0)), False)
sketch2.addGeometry(Part.ArcOfCircle(Part.Circle(Vector(-4, 3.5, 0), Vector(0, 0, 1), 2.5), math.radians(0), math.radians(180)), False)
sketch2.addGeometry(Part.LineSegment(Vector(-6.5, 3.5, 0), Vector(-6.5, 1, 0)), False)
sketch2.addGeometry(Part.LineSegment(Vector(-6.5, 1, 0), Vector(-55.8, 1, 0)), False)
sketch2.addGeometry(Part.LineSegment(Vector(-55.8, 1, 0), Vector(-55.8, 3.5, 0)), False)
sketch2.addGeometry(Part.ArcOfCircle(Part.Circle(Vector(-58.2, 3.5, 0), Vector(0, 0, 1), 2.5), math.radians(0), math.radians(180)), False)
sketch2.addGeometry(Part.LineSegment(Vector(-60.8, 3.5, 0), Vector(-60.8, 1, 0)), False)
sketch2.addGeometry(Part.LineSegment(Vector(-60.8, 1, 0), Vector(-112.5, 1, 0)), False)
sketch2.addGeometry(Part.LineSegment(Vector(-112.5, 1, 0), Vector(-112.5, 3.5, 0)), False)
sketch2.addGeometry(Part.ArcOfCircle(Part.Circle(Vector(-115, 3.5, 0), Vector(0, 0, 1), 2.5), math.radians(0), math.radians(180)), False)
sketch2.addGeometry(Part.Circle(Vector(-115, -33.5, 0), Vector(0, 0, 1), 1.6), False)
sketch2.addGeometry(Part.Circle(Vector(-58.2, -33.5, 0), Vector(0, 0, 1), 1.6), False)
sketch2.addGeometry(Part.Circle(Vector(-4, -33.5, 0), Vector(0, 0, 1), 1.6), False)
sketch2.addGeometry(Part.Circle(Vector(-115, 3.5, 0), Vector(0, 0, 1), 1.6), False)
sketch2.addGeometry(Part.Circle(Vector(-58.2, 3.5, 0), Vector(0, 0, 1), 1.6), False)
sketch2.addGeometry(Part.Circle(Vector(-4, 3.5, 0), Vector(0, 0, 1), 1.6), False)
sketch2.addConstraint(Sketcher.Constraint("Tangent", 0, 2, 1, 1))
sketch2.addConstraint(Sketcher.Constraint("Tangent", 1, 2, 2, 1))
sketch2.addConstraint(Sketcher.Constraint("Coincident", 2, 2, 3, 1))
sketch2.addConstraint(Sketcher.Constraint("Coincident", 3, 2, 4, 1))
sketch2.addConstraint(Sketcher.Constraint("Tangent", 4, 2, 5, 1))
sketch2.addConstraint(Sketcher.Constraint("Tangent", 5, 2, 6, 1))
sketch2.addConstraint(Sketcher.Constraint("Coincident", 6, 2, 7, 1))
sketch2.addConstraint(Sketcher.Constraint("Coincident", 7, 2, 8, 1))
sketch2.addConstraint(Sketcher.Constraint("Tangent", 8, 2, 9, 1))
sketch2.addConstraint(Sketcher.Constraint("Tangent", 9, 2, 10, 1))
sketch2.addConstraint(Sketcher.Constraint("Coincident", 10, 2, 11, 1))
sketch2.addConstraint(Sketcher.Constraint("Coincident", 11, 2, 12, 1))
sketch2.addConstraint(Sketcher.Constraint("Coincident", 12, 2, 13, 1))
sketch2.addConstraint(Sketcher.Constraint("Coincident", 13, 2, 14, 1))
sketch2.addConstraint(Sketcher.Constraint("Tangent", 14, 2, 15, 1))
sketch2.addConstraint(Sketcher.Constraint("Tangent", 15, 2, 16, 1))
sketch2.addConstraint(Sketcher.Constraint("Coincident", 16, 2, 17, 1))
sketch2.addConstraint(Sketcher.Constraint("Coincident", 17, 2, 18, 1))
sketch2.addConstraint(Sketcher.Constraint("Tangent", 18, 2, 19, 1))
sketch2.addConstraint(Sketcher.Constraint("Tangent", 19, 2, 20, 1))
sketch2.addConstraint(Sketcher.Constraint("Coincident", 20, 2, 21, 1))
sketch2.addConstraint(Sketcher.Constraint("Coincident", 21, 2, 22, 1))
sketch2.addConstraint(Sketcher.Constraint("Tangent", 22, 2, 23, 1))
sketch2.addConstraint(Sketcher.Constraint("Tangent", 23, 2, 0, 1))
sketch2.addConstraint(Sketcher.Constraint("Vertical", 0))
sketch2.addConstraint(Sketcher.Constraint("Vertical", 2))
sketch2.addConstraint(Sketcher.Constraint("Horizontal", 3))
sketch2.addConstraint(Sketcher.Constraint("Vertical", 4))
sketch2.addConstraint(Sketcher.Constraint("Vertical", 6))
sketch2.addConstraint(Sketcher.Constraint("Horizontal", 7))
sketch2.addConstraint(Sketcher.Constraint("Vertical", 8))
sketch2.addConstraint(Sketcher.Constraint("Vertical", 10))
sketch2.addConstraint(Sketcher.Constraint("Horizontal", 11))
sketch2.addConstraint(Sketcher.Constraint("Vertical", 12))
sketch2.addConstraint(Sketcher.Constraint("Horizontal", 13))
sketch2.addConstraint(Sketcher.Constraint("Vertical", 14))
sketch2.addConstraint(Sketcher.Constraint("Vertical", 16))
sketch2.addConstraint(Sketcher.Constraint("Horizontal", 17))
sketch2.addConstraint(Sketcher.Constraint("Vertical", 18))
sketch2.addConstraint(Sketcher.Constraint("Vertical", 20))
sketch2.addConstraint(Sketcher.Constraint("Horizontal", 21))
sketch2.addConstraint(Sketcher.Constraint("Vertical", 22))
sketch2.addConstraint(Sketcher.Constraint("Coincident", 24, 3, 1, 3))
sketch2.addConstraint(Sketcher.Constraint("Coincident", 25, 3, 5, 3))
sketch2.addConstraint(Sketcher.Constraint("Coincident", 26, 3, 9, 3))
sketch2.addConstraint(Sketcher.Constraint("Coincident", 27, 3, 23, 3))
sketch2.addConstraint(Sketcher.Constraint("Coincident", 28, 3, 19, 3))
sketch2.addConstraint(Sketcher.Constraint("Coincident", 29, 3, 15, 3))
sketch2.addConstraint(Sketcher.Constraint("Equal", 1, 5))
sketch2.addConstraint(Sketcher.Constraint("Equal", 5, 9))
sketch2.addConstraint(Sketcher.Constraint("Equal", 9, 15))
sketch2.addConstraint(Sketcher.Constraint("Equal", 15, 19))
sketch2.addConstraint(Sketcher.Constraint("Equal", 19, 23))
sketch2.addConstraint(Sketcher.Constraint("Equal", 24, 25))
sketch2.addConstraint(Sketcher.Constraint("Equal", 25, 26))
sketch2.addConstraint(Sketcher.Constraint("Equal", 26, 27))
sketch2.addConstraint(Sketcher.Constraint("Equal", 27, 28))
sketch2.addConstraint(Sketcher.Constraint("Equal", 28, 29))
sketch2.addConstraint(Sketcher.Constraint("Horizontal", 1, 3, 5, 3))
sketch2.addConstraint(Sketcher.Constraint("Horizontal", 5, 3, 9, 3))
sketch2.addConstraint(Sketcher.Constraint("Horizontal", 15, 3, 19, 3))
sketch2.addConstraint(Sketcher.Constraint("Horizontal", 19, 3, 23, 3))
sketch2.addConstraint(Sketcher.Constraint("Horizontal", 3, 2, 6, 2))
sketch2.addConstraint(Sketcher.Constraint("Horizontal", 7, 2, 10, 2))
sketch2.addConstraint(Sketcher.Constraint("Horizontal", 13, 2, 16, 2))
sketch2.addConstraint(Sketcher.Constraint("Horizontal", 17, 2, 20, 2))
sketch2.addConstraint(Sketcher.Constraint("Vertical", 9, 3, 15, 3))
sketch2.addConstraint(Sketcher.Constraint("Vertical", 5, 3, 19, 3))
sketch2.addConstraint(Sketcher.Constraint("Equal", 13, 2))
sketch2.addConstraint(Sketcher.Constraint("Equal", 10, 14))
sketch2.addConstraint(Sketcher.Constraint("Diameter", 24, Q("3.1 mm")))
sketch2.addConstraint(Sketcher.Constraint("Radius", 1, Q("2.5 mm")))
sketch2.addConstraint(Sketcher.Constraint("DistanceY", 0, 2, 0, 1, Q("37 mm")))
sketch2.addConstraint(Sketcher.Constraint("DistanceY", 12, 1, 12, 2, Q("32 mm")))
sketch2.addConstraint(Sketcher.Constraint("DistanceX", 1, 3, -1, 1, Q("115 mm")))
sketch2.addConstraint(Sketcher.Constraint("DistanceX", 9, 3, -1, 1, Q("4 mm")))
sketch2.addConstraint(Sketcher.Constraint("DistanceY", 2, 2, -1, 1, Q("31 mm")))
sketch2.addConstraint(Sketcher.Constraint("DistanceX", 3, 1, 3, 2, Q("51.75 mm")))
pad2 = body.newObject("PartDesign::Pad", "Pad001")
pad2.Profile = sketch2
pad2.Length = 1
doc.recompute()

fillet = body.newObject("PartDesign::Fillet", "Fillet")
fillet.Base = (pad2, edges_at(pad2, [
    (-73.5, 3.5, -6),
    (-73.5, 3.5, -24),
    (-40, 3.5, -24),
    (1, 3, -31),
    (-1.5, 3, -31),
    (1, 3, 1),
    (-55.75, 3, -31),
    (-1.5, 3, 1),
    (-55.75, 3, 1),
    (-112.5, 3, 1),
    (-112.5, 3, -31),
    (-60.75, 3, -31),
    (-6.5, 3, -31),
    (-60.75, 3, 1),
    (-6.5, 3, 1),
    (-40, 3.5, -6),
    (-72.5, 3.5, 0),
    (-57.75, 3.5, 0),
    (-72.5, 3.5, -25),
    (-57.75, 3.5, -25),
    (-41, 3.5, -25),
    (-58.75, 3.5, -25),
    (-41, 3.5, 0),
    (-58.75, 3.5, 0),
    (-72.5, 3.5, -30),
    (-57.75, 3.5, -30),
    (-57.75, 3.5, -5),
    (-72.5, 3.5, -5),
    (-41, 3.5, -5),
    (-58.75, 3.5, -5),
    (-58.75, 3.5, -30),
    (-41, 3.5, -30),
]))
fillet.Radius = 1

# Sketch on XZ plane
sketch3 = body.newObject("Sketcher::SketchObject", "Sketch002")
sketch3.AttachmentSupport = (doc.getObject("XZ_Plane"), [""])
sketch3.MapMode = "FlatFace"
sketch3.AttachmentOffset = App.Placement(Vector(0, 0, -7), App.Rotation())
sketch3.addGeometry(Part.LineSegment(Vector(4, -39, 0), Vector(-120, -39, 0)), False)
sketch3.addGeometry(Part.LineSegment(Vector(-120, -39, 0), Vector(-120, 11, 0)), False)
sketch3.addGeometry(Part.LineSegment(Vector(-120, 11, 0), Vector(4, 11, 0)), False)
sketch3.addGeometry(Part.LineSegment(Vector(4, 11, 0), Vector(4, -39, 0)), False)
sketch3.addConstraint(Sketcher.Constraint("Coincident", 0, 2, 1, 1))
sketch3.addConstraint(Sketcher.Constraint("Coincident", 1, 2, 2, 1))
sketch3.addConstraint(Sketcher.Constraint("Coincident", 2, 2, 3, 1))
sketch3.addConstraint(Sketcher.Constraint("Coincident", 3, 2, 0, 1))
sketch3.addConstraint(Sketcher.Constraint("Horizontal", 0))
sketch3.addConstraint(Sketcher.Constraint("Vertical", 1))
sketch3.addConstraint(Sketcher.Constraint("Horizontal", 2))
sketch3.addConstraint(Sketcher.Constraint("Vertical", 3))
sketch3.addConstraint(Sketcher.Constraint("DistanceY", 1, 1, 1, 2, Q("49.676 mm")))
sketch3.addConstraint(Sketcher.Constraint("DistanceX", 0, 2, 0, 1, Q("124.1168 mm")))
sketch3.addConstraint(Sketcher.Constraint("DistanceX", 0, 2, -1, 1, Q("120.447 mm")))
sketch3.addConstraint(Sketcher.Constraint("DistanceY", 0, 2, -1, 1, Q("38.9055 mm")))
pocket1 = body.newObject("PartDesign::Pocket", "Pocket")
pocket1.Profile = sketch3
pocket1.Length = 7
pocket1.Reversed = True

# Sketch on XZ plane
sketch4 = body.newObject("Sketcher::SketchObject", "Sketch003")
sketch4.AttachmentSupport = (doc.getObject("XZ_Plane"), [""])
sketch4.MapMode = "FlatFace"
sketch4.addGeometry(Part.LineSegment(Vector(-1, -29, 0), Vector(-64, -29, 0)), False)
sketch4.addGeometry(Part.LineSegment(Vector(-64, -29, 0), Vector(-64, -1, 0)), False)
sketch4.addGeometry(Part.LineSegment(Vector(-64, -1, 0), Vector(-1, -1, 0)), False)
sketch4.addGeometry(Part.LineSegment(Vector(-1, -1, 0), Vector(-1, -29, 0)), False)
sketch4.addGeometry(Part.LineSegment(Vector(-68, -30, 0), Vector(-80, -30, 0)), False)
sketch4.addGeometry(Part.LineSegment(Vector(-80, -30, 0), Vector(-80, -20, 0)), False)
sketch4.addGeometry(Part.LineSegment(Vector(-80, -20, 0), Vector(-68, -20, 0)), False)
sketch4.addGeometry(Part.LineSegment(Vector(-68, -20, 0), Vector(-68, -30, 0)), False)
sketch4.addGeometry(Part.LineSegment(Vector(-68, -12, 0), Vector(-80, -12, 0)), False)
sketch4.addGeometry(Part.LineSegment(Vector(-80, -12, 0), Vector(-80, -2, 0)), False)
sketch4.addGeometry(Part.LineSegment(Vector(-80, -2, 0), Vector(-68, -2, 0)), False)
sketch4.addGeometry(Part.LineSegment(Vector(-68, -2, 0), Vector(-68, -12, 0)), False)
sketch4.addConstraint(Sketcher.Constraint("Coincident", 0, 2, 1, 1))
sketch4.addConstraint(Sketcher.Constraint("Coincident", 1, 2, 2, 1))
sketch4.addConstraint(Sketcher.Constraint("Coincident", 2, 2, 3, 1))
sketch4.addConstraint(Sketcher.Constraint("Coincident", 3, 2, 0, 1))
sketch4.addConstraint(Sketcher.Constraint("Coincident", 4, 2, 5, 1))
sketch4.addConstraint(Sketcher.Constraint("Coincident", 5, 2, 6, 1))
sketch4.addConstraint(Sketcher.Constraint("Coincident", 6, 2, 7, 1))
sketch4.addConstraint(Sketcher.Constraint("Coincident", 7, 2, 4, 1))
sketch4.addConstraint(Sketcher.Constraint("Coincident", 8, 2, 9, 1))
sketch4.addConstraint(Sketcher.Constraint("Coincident", 9, 2, 10, 1))
sketch4.addConstraint(Sketcher.Constraint("Coincident", 10, 2, 11, 1))
sketch4.addConstraint(Sketcher.Constraint("Coincident", 11, 2, 8, 1))
sketch4.addConstraint(Sketcher.Constraint("Horizontal", 0))
sketch4.addConstraint(Sketcher.Constraint("Vertical", 1))
sketch4.addConstraint(Sketcher.Constraint("Horizontal", 2))
sketch4.addConstraint(Sketcher.Constraint("Vertical", 3))
sketch4.addConstraint(Sketcher.Constraint("Horizontal", 4))
sketch4.addConstraint(Sketcher.Constraint("Vertical", 5))
sketch4.addConstraint(Sketcher.Constraint("Horizontal", 6))
sketch4.addConstraint(Sketcher.Constraint("Vertical", 7))
sketch4.addConstraint(Sketcher.Constraint("Horizontal", 8))
sketch4.addConstraint(Sketcher.Constraint("Vertical", 9))
sketch4.addConstraint(Sketcher.Constraint("Horizontal", 10))
sketch4.addConstraint(Sketcher.Constraint("Vertical", 11))
sketch4.addConstraint(Sketcher.Constraint("Vertical", 5, 2, 8, 2))
sketch4.addConstraint(Sketcher.Constraint("Vertical", 7, 2, 10, 2))
sketch4.addConstraint(Sketcher.Constraint("Equal", 7, 9))
sketch4.addConstraint(Sketcher.Constraint("DistanceX", 4, 2, 4, 1, Q("12 mm")))
sketch4.addConstraint(Sketcher.Constraint("DistanceY", 1, 2, -1, 1, Q("1 mm")))
sketch4.addConstraint(Sketcher.Constraint("DistanceX", 2, 2, -1, 1, Q("1 mm")))
sketch4.addConstraint(Sketcher.Constraint("DistanceY", 4, 2, 0, 2, Q("1 mm")))
sketch4.addConstraint(Sketcher.Constraint("DistanceY", 9, 2, -1, 1, Q("2.5 mm")))
sketch4.addConstraint(Sketcher.Constraint("DistanceY", 1, 1, 1, 2, Q("28 mm")))
sketch4.addConstraint(Sketcher.Constraint("DistanceY", 5, 1, 5, 2, Q("10 mm")))
sketch4.addConstraint(Sketcher.Constraint("DistanceX", 0, 2, 0, 1, Q("63.5 mm")))
sketch4.addConstraint(Sketcher.Constraint("DistanceX", 4, 2, 0, 2, Q("15 mm")))
pocket2 = body.newObject("PartDesign::Pocket", "Pocket001")
pocket2.Profile = sketch4
pocket2.Type = "ThroughAll"
pocket2.Reversed = True
doc.recompute()

fillet2 = body.newObject("PartDesign::Fillet", "Fillet001")
fillet2.Base = (pocket2, edges_at(pocket2, [
    (-64.5, -0.5, -29),
    (-79.5, -0.5, -30),
    (-79.5, -0.5, -12.5),
    (-1, -0.5, -29),
    (-1, -0.5, -1),
    (-67.5, -0.5, -2.5),
    (-67.5, -0.5, -20),
    (-64.5, -0.5, -1),
    (-79.5, -0.5, -2.5),
    (-79.5, -0.5, -20),
    (-67.5, -0.5, -30),
    (-67.5, -0.5, -12.5),
]))
fillet2.Radius = 2

doc.recompute()
